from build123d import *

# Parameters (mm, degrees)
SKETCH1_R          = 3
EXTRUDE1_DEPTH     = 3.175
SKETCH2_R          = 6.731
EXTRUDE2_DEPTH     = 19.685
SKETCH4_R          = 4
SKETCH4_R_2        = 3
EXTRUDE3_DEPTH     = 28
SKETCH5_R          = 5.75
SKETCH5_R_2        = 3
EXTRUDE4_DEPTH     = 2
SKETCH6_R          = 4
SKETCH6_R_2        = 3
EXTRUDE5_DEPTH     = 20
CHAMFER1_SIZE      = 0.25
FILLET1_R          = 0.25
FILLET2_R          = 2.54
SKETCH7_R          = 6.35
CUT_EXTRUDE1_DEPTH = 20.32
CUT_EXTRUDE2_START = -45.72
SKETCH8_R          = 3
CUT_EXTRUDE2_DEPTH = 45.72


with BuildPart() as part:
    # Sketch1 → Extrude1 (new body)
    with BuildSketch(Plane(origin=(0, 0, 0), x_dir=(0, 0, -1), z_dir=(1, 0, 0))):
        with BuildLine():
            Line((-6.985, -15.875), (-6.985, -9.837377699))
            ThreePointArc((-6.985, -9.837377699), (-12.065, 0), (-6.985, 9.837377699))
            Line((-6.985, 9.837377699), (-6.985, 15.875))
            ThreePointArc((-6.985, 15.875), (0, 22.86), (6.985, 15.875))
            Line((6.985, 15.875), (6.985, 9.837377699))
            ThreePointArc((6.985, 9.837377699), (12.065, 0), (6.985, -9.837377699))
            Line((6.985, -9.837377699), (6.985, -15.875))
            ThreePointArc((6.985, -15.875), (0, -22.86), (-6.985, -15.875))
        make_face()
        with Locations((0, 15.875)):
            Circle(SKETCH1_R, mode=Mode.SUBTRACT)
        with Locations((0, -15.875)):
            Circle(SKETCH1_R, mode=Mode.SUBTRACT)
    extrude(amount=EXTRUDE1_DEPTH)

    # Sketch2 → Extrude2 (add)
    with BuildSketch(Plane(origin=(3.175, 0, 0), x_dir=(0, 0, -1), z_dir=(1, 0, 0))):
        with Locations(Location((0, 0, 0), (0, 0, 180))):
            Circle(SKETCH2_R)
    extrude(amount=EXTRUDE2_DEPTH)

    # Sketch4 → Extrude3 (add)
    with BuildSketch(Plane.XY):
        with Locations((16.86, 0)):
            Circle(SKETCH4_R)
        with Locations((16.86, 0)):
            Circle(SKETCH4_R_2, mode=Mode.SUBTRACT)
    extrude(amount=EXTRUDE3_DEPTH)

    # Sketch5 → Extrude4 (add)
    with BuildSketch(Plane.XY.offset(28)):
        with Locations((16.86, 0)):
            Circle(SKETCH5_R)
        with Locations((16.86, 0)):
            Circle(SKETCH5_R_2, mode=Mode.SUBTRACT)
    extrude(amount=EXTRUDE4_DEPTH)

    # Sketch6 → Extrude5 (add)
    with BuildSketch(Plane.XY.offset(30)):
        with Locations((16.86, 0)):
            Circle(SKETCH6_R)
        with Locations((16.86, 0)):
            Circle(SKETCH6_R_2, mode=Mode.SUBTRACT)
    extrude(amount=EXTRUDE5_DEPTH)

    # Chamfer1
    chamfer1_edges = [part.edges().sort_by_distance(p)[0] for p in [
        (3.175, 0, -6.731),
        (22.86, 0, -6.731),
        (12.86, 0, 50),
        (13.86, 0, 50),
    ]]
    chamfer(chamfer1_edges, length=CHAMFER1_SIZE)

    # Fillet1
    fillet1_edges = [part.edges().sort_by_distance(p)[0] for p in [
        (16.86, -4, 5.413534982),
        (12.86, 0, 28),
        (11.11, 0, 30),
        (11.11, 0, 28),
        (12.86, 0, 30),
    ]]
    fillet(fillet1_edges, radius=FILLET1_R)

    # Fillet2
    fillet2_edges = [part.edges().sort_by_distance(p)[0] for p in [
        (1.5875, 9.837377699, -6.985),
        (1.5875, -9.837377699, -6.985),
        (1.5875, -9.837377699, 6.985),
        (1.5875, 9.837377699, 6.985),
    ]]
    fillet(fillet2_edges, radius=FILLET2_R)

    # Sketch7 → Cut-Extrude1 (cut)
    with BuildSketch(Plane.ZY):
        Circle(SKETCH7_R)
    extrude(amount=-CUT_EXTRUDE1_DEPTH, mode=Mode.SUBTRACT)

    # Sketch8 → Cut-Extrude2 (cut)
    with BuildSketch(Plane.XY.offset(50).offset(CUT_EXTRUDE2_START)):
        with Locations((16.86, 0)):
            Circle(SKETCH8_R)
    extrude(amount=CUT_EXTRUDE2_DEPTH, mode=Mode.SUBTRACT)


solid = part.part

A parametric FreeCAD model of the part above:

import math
import FreeCAD as App
import Part
import Sketcher
Q = App.Units.Quantity


def edges_at(feature, points):
    """Names of the edges that pass closest to the given points."""
    edges = feature.Shape.Edges
    near = lambda p: min(range(len(edges)), key=lambda i: edges[i].distToShape(Part.Vertex(*p))[0])
    return sorted({f"Edge{near(p) + 1}" for p in points})

doc = App.newDocument("Part")
body = doc.addObject("PartDesign::Body", "Body")

sketch1 = body.newObject("Sketcher::SketchObject", "Sketch")
sketch1.AttachmentSupport = (doc.getObject("YZ_Plane"), [""])
sketch1.MapMode = "FlatFace"
sketch1.addGeometry(Part.LineSegment(App.Vector(-9.8, 7, 0), App.Vector(-15.9, 7, 0)), False)
sketch1.addGeometry(Part.ArcOfCircle(Part.Circle(App.Vector(-15.9, 0, 0), App.Vector(0, 0, 1), 7), math.radians(90), math.radians(270)), False)
sketch1.addGeometry(Part.LineSegment(App.Vector(-15.9, -7, 0), App.Vector(-9.8, -7, 0)), False)
sketch1.addGeometry(Part.ArcOfCircle(Part.Circle(App.Vector(0, 0, 0), App.Vector(0, 0, 1), 12.1), math.radians(-145), math.radians(-35)), False)
sketch1.addGeometry(Part.LineSegment(App.Vector(9.8, -7, 0), App.Vector(15.9, -7, 0)), False)
sketch1.addGeometry(Part.ArcOfCircle(Part.Circle(App.Vector(15.9, 0, 0), App.Vector(0, 0, 1), 7), math.radians(-90), math.radians(90)), False)
sketch1.addGeometry(Part.LineSegment(App.Vector(15.9, 7, 0), App.Vector(9.8, 7, 0)), False)
sketch1.addGeometry(Part.ArcOfCircle(Part.Circle(App.Vector(0, 0, 0), App.Vector(0, 0, 1), 12.1), math.radians(35), math.radians(145)), False)
sketch1.addGeometry(Part.Circle(App.Vector(-15.9, 0, 0), App.Vector(0, 0, 1), 3), False)
sketch1.addGeometry(Part.Circle(App.Vector(15.9, 0, 0), App.Vector(0, 0, 1), 3), False)
sketch1.addConstraint(Sketcher.Constraint("Tangent", 0, 2, 1, 1))
sketch1.addConstraint(Sketcher.Constraint("Tangent", 1, 2, 2, 1))
sketch1.addConstraint(Sketcher.Constraint("Coincident", 2, 2, 3, 1))
sketch1.addConstraint(Sketcher.Constraint("Coincident", 3, 2, 4, 1))
sketch1.addConstraint(Sketcher.Constraint("Tangent", 4, 2, 5, 1))
sketch1.addConstraint(Sketcher.Constraint("Tangent", 5, 2, 6, 1))
sketch1.addConstraint(Sketcher.Constraint("Coincident", 6, 2, 7, 1))
sketch1.addConstraint(Sketcher.Constraint("Coincident", 7, 2, 0, 1))
sketch1.addConstraint(Sketcher.Constraint("Horizontal", 0))
sketch1.addConstraint(Sketcher.Constraint("Horizontal", 2))
sketch1.addConstraint(Sketcher.Constraint("Horizontal", 4))
sketch1.addConstraint(Sketcher.Constraint("Horizontal", 6))
sketch1.addConstraint(Sketcher.Constraint("Coincident", 3, 3, -1, 1))
sketch1.addConstraint(Sketcher.Constraint("Coincident", 7, 3, -1, 1))
sketch1.addConstraint(Sketcher.Constraint("Coincident", 8, 3, 1, 3))
sketch1.addConstraint(Sketcher.Constraint("Coincident", 9, 3, 5, 3))
sketch1.addConstraint(Sketcher.Constraint("Equal", 1, 5))
sketch1.addConstraint(Sketcher.Constraint("Equal", 3, 7))
sketch1.addConstraint(Sketcher.Constraint("Equal", 8, 9))
sketch1.addConstraint(Sketcher.Constraint("Symmetric", 1, 3, 5, 3, -1, 1))
sketch1.addConstraint(Sketcher.Constraint("PointOnObject", 1, 3, -1))
sketch1.addConstraint(Sketcher.Constraint("Radius", 1, Q("0.275 in")))
sketch1.addConstraint(Sketcher.Constraint("Radius", 3, Q("0.475 in")))
sketch1.addConstraint(Sketcher.Constraint("Diameter", 8, 6.0))
sketch1.addConstraint(Sketcher.Constraint("DistanceX", 1, 3, 5, 3, Q("1.25 in")))
pad1 = body.newObject("PartDesign::Pad", "Pad")
pad1.Profile = sketch1
pad1.Length = Q("0.125 in")

sketch2 = body.newObject("Sketcher::SketchObject", "Sketch001")
sketch2.AttachmentSupport = (doc.getObject("YZ_Plane"), [""])
sketch2.MapMode = "FlatFace"
sketch2.AttachmentOffset = App.Placement(App.Vector(0, 0, 0.125 * 25.4), App.Rotation())
sketch2.addGeometry(Part.Circle(App.Vector(0, 0, 0), App.Vector(0, 0, 1), 7), False)
sketch2.addConstraint(Sketcher.Constraint("Coincident", 0, 3, -1, 1))
sketch2.addConstraint(Sketcher.Constraint("Diameter", 0, Q("0.53 in")))
pad2 = body.newObject("PartDesign::Pad", "Pad001")
pad2.Profile = sketch2
pad2.Length = Q("0.775 in")

sketch3 = body.newObject("Sketcher::SketchObject", "Sketch002")
sketch3.AttachmentSupport = (doc.getObject("XY_Plane"), [""])
sketch3.MapMode = "FlatFace"
sketch3.addGeometry(Part.Circle(App.Vector(16.9, 0, 0), App.Vector(0, 0, 1), 4), False)
sketch3.addGeometry(Part.Circle(App.Vector(16.9, 0, 0), App.Vector(0, 0, 1), 3), False)
sketch3.addConstraint(Sketcher.Constraint("Coincident", 1, 3, 0, 3))
sketch3.addConstraint(Sketcher.Constraint("PointOnObject", 0, 3, -1))
sketch3.addConstraint(Sketcher.Constraint("Diameter", 0, 8.0))
sketch3.addConstraint(Sketcher.Constraint("Diameter", 1, 6.0))
sketch3.addConstraint(Sketcher.Constraint("DistanceX", -1, 1, 0, 3, 16.86))
pad3 = body.newObject("PartDesign::Pad", "Pad002")
pad3.Profile = sketch3
pad3.Length = 28

sketch4 = body.newObject("Sketcher::SketchObject", "Sketch003")
sketch4.AttachmentSupport = (doc.getObject("XY_Plane"), [""])
sketch4.MapMode = "FlatFace"
sketch4.AttachmentOffset = App.Placement(App.Vector(0, 0, 28), App.Rotation())
sketch4.addGeometry(Part.Circle(App.Vector(16.9, 0, 0), App.Vector(0, 0, 1), 5.8), False)
sketch4.addGeometry(Part.Circle(App.Vector(16.9, 0, 0), App.Vector(0, 0, 1), 3), False)
sketch4.addConstraint(Sketcher.Constraint("Coincident", 1, 3, 0, 3))
sketch4.addConstraint(Sketcher.Constraint("PointOnObject", 0, 3, -1))
sketch4.addConstraint(Sketcher.Constraint("Diameter", 0, 11.5))
sketch4.addConstraint(Sketcher.Constraint("Diameter", 1, 6.0))
sketch4.addConstraint(Sketcher.Constraint("DistanceX", -1, 1, 0, 3, 16.86))
pad4 = body.newObject("PartDesign::Pad", "Pad003")
pad4.Profile = sketch4
pad4.Length = 2

sketch5 = body.newObject("Sketcher::SketchObject", "Sketch004")
sketch5.AttachmentSupport = (doc.getObject("XY_Plane"), [""])
sketch5.MapMode = "FlatFace"
sketch5.AttachmentOffset = App.Placement(App.Vector(0, 0, 30), App.Rotation())
sketch5.addGeometry(Part.Circle(App.Vector(16.9, 0, 0), App.Vector(0, 0, 1), 4), False)
sketch5.addGeometry(Part.Circle(App.Vector(16.9, 0, 0), App.Vector(0, 0, 1), 3), False)
sketch5.addConstraint(Sketcher.Constraint("Coincident", 1, 3, 0, 3))
sketch5.addConstraint(Sketcher.Constraint("PointOnObject", 0, 3, -1))
sketch5.addConstraint(Sketcher.Constraint("Diameter", 0, 8.0))
sketch5.addConstraint(Sketcher.Constraint("Diameter", 1, 6.0))
sketch5.addConstraint(Sketcher.Constraint("DistanceX", -1, 1, 0, 3, 16.86))
pad5 = body.newObject("PartDesign::Pad", "Pad004")
pad5.Profile = sketch5
pad5.Length = 20
doc.recompute()

chamfer = body.newObject("PartDesign::Chamfer", "Chamfer")
chamfer.Base = (pad5, edges_at(pad5, [
    (3.175, 0, -6.731),
    (22.86, 0, -6.731),
    (12.86, 0, 50),
    (13.86, 0, 50),
]))
chamfer.Size = 0.25
doc.recompute()

fillet = body.newObject("PartDesign::Fillet", "Fillet")
fillet.Base = (chamfer, edges_at(chamfer, [
    (16.86, -4, 5.414),
    (12.86, 0, 28),
    (11.11, 0, 30),
    (11.11, 0, 28),
    (12.86, 0, 30),
]))
fillet.Radius = 0.25
doc.recompute()

fillet2 = body.newObject("PartDesign::Fillet", "Fillet001")
fillet2.Base = (fillet, edges_at(fillet, [
    (1.587, 9.837, -6.985),
    (1.587, -9.837, -6.985),
    (1.587, -9.837, 6.985),
    (1.587, 9.837, 6.985),
]))
fillet2.Radius = Q("0.1 in")

sketch6 = body.newObject("Sketcher::SketchObject", "Sketch005")
sketch6.AttachmentSupport = (doc.getObject("YZ_Plane"), [""])
sketch6.MapMode = "FlatFace"
sketch6.addGeometry(Part.Circle(App.Vector(0, 0, 0), App.Vector(0, 0, 1), 6), False)
sketch6.addConstraint(Sketcher.Constraint("Coincident", 0, 3, -1, 1))
sketch6.addConstraint(Sketcher.Constraint("Diameter", 0, Q("0.5 in")))
pocket1 = body.newObject("PartDesign::Pocket", "Pocket")
pocket1.Profile = sketch6
pocket1.Length = Q("0.8 in")
pocket1.Reversed = True

sketch7 = body.newObject("Sketcher::SketchObject", "Sketch006")
sketch7.AttachmentSupport = (doc.getObject("XY_Plane"), [""])
sketch7.MapMode = "FlatFace"
sketch7.AttachmentOffset = App.Placement(App.Vector(0, 0, 4.28), App.Rotation())
sketch7.addGeometry(Part.Circle(App.Vector(16.9, 0, 0), App.Vector(0, 0, 1), 3), False)
sketch7.addConstraint(Sketcher.Constraint("PointOnObject", 0, 3, -1))
sketch7.addConstraint(Sketcher.Constraint("Diameter", 0, 6.0))
sketch7.addConstraint(Sketcher.Constraint("DistanceX", -1, 1, 0, 3, 16.86))
pocket2 = body.newObject("PartDesign::Pocket", "Pocket001")
pocket2.Profile = sketch7
pocket2.Length = Q("1.8 in")
pocket2.Reversed = True

doc.recompute()
